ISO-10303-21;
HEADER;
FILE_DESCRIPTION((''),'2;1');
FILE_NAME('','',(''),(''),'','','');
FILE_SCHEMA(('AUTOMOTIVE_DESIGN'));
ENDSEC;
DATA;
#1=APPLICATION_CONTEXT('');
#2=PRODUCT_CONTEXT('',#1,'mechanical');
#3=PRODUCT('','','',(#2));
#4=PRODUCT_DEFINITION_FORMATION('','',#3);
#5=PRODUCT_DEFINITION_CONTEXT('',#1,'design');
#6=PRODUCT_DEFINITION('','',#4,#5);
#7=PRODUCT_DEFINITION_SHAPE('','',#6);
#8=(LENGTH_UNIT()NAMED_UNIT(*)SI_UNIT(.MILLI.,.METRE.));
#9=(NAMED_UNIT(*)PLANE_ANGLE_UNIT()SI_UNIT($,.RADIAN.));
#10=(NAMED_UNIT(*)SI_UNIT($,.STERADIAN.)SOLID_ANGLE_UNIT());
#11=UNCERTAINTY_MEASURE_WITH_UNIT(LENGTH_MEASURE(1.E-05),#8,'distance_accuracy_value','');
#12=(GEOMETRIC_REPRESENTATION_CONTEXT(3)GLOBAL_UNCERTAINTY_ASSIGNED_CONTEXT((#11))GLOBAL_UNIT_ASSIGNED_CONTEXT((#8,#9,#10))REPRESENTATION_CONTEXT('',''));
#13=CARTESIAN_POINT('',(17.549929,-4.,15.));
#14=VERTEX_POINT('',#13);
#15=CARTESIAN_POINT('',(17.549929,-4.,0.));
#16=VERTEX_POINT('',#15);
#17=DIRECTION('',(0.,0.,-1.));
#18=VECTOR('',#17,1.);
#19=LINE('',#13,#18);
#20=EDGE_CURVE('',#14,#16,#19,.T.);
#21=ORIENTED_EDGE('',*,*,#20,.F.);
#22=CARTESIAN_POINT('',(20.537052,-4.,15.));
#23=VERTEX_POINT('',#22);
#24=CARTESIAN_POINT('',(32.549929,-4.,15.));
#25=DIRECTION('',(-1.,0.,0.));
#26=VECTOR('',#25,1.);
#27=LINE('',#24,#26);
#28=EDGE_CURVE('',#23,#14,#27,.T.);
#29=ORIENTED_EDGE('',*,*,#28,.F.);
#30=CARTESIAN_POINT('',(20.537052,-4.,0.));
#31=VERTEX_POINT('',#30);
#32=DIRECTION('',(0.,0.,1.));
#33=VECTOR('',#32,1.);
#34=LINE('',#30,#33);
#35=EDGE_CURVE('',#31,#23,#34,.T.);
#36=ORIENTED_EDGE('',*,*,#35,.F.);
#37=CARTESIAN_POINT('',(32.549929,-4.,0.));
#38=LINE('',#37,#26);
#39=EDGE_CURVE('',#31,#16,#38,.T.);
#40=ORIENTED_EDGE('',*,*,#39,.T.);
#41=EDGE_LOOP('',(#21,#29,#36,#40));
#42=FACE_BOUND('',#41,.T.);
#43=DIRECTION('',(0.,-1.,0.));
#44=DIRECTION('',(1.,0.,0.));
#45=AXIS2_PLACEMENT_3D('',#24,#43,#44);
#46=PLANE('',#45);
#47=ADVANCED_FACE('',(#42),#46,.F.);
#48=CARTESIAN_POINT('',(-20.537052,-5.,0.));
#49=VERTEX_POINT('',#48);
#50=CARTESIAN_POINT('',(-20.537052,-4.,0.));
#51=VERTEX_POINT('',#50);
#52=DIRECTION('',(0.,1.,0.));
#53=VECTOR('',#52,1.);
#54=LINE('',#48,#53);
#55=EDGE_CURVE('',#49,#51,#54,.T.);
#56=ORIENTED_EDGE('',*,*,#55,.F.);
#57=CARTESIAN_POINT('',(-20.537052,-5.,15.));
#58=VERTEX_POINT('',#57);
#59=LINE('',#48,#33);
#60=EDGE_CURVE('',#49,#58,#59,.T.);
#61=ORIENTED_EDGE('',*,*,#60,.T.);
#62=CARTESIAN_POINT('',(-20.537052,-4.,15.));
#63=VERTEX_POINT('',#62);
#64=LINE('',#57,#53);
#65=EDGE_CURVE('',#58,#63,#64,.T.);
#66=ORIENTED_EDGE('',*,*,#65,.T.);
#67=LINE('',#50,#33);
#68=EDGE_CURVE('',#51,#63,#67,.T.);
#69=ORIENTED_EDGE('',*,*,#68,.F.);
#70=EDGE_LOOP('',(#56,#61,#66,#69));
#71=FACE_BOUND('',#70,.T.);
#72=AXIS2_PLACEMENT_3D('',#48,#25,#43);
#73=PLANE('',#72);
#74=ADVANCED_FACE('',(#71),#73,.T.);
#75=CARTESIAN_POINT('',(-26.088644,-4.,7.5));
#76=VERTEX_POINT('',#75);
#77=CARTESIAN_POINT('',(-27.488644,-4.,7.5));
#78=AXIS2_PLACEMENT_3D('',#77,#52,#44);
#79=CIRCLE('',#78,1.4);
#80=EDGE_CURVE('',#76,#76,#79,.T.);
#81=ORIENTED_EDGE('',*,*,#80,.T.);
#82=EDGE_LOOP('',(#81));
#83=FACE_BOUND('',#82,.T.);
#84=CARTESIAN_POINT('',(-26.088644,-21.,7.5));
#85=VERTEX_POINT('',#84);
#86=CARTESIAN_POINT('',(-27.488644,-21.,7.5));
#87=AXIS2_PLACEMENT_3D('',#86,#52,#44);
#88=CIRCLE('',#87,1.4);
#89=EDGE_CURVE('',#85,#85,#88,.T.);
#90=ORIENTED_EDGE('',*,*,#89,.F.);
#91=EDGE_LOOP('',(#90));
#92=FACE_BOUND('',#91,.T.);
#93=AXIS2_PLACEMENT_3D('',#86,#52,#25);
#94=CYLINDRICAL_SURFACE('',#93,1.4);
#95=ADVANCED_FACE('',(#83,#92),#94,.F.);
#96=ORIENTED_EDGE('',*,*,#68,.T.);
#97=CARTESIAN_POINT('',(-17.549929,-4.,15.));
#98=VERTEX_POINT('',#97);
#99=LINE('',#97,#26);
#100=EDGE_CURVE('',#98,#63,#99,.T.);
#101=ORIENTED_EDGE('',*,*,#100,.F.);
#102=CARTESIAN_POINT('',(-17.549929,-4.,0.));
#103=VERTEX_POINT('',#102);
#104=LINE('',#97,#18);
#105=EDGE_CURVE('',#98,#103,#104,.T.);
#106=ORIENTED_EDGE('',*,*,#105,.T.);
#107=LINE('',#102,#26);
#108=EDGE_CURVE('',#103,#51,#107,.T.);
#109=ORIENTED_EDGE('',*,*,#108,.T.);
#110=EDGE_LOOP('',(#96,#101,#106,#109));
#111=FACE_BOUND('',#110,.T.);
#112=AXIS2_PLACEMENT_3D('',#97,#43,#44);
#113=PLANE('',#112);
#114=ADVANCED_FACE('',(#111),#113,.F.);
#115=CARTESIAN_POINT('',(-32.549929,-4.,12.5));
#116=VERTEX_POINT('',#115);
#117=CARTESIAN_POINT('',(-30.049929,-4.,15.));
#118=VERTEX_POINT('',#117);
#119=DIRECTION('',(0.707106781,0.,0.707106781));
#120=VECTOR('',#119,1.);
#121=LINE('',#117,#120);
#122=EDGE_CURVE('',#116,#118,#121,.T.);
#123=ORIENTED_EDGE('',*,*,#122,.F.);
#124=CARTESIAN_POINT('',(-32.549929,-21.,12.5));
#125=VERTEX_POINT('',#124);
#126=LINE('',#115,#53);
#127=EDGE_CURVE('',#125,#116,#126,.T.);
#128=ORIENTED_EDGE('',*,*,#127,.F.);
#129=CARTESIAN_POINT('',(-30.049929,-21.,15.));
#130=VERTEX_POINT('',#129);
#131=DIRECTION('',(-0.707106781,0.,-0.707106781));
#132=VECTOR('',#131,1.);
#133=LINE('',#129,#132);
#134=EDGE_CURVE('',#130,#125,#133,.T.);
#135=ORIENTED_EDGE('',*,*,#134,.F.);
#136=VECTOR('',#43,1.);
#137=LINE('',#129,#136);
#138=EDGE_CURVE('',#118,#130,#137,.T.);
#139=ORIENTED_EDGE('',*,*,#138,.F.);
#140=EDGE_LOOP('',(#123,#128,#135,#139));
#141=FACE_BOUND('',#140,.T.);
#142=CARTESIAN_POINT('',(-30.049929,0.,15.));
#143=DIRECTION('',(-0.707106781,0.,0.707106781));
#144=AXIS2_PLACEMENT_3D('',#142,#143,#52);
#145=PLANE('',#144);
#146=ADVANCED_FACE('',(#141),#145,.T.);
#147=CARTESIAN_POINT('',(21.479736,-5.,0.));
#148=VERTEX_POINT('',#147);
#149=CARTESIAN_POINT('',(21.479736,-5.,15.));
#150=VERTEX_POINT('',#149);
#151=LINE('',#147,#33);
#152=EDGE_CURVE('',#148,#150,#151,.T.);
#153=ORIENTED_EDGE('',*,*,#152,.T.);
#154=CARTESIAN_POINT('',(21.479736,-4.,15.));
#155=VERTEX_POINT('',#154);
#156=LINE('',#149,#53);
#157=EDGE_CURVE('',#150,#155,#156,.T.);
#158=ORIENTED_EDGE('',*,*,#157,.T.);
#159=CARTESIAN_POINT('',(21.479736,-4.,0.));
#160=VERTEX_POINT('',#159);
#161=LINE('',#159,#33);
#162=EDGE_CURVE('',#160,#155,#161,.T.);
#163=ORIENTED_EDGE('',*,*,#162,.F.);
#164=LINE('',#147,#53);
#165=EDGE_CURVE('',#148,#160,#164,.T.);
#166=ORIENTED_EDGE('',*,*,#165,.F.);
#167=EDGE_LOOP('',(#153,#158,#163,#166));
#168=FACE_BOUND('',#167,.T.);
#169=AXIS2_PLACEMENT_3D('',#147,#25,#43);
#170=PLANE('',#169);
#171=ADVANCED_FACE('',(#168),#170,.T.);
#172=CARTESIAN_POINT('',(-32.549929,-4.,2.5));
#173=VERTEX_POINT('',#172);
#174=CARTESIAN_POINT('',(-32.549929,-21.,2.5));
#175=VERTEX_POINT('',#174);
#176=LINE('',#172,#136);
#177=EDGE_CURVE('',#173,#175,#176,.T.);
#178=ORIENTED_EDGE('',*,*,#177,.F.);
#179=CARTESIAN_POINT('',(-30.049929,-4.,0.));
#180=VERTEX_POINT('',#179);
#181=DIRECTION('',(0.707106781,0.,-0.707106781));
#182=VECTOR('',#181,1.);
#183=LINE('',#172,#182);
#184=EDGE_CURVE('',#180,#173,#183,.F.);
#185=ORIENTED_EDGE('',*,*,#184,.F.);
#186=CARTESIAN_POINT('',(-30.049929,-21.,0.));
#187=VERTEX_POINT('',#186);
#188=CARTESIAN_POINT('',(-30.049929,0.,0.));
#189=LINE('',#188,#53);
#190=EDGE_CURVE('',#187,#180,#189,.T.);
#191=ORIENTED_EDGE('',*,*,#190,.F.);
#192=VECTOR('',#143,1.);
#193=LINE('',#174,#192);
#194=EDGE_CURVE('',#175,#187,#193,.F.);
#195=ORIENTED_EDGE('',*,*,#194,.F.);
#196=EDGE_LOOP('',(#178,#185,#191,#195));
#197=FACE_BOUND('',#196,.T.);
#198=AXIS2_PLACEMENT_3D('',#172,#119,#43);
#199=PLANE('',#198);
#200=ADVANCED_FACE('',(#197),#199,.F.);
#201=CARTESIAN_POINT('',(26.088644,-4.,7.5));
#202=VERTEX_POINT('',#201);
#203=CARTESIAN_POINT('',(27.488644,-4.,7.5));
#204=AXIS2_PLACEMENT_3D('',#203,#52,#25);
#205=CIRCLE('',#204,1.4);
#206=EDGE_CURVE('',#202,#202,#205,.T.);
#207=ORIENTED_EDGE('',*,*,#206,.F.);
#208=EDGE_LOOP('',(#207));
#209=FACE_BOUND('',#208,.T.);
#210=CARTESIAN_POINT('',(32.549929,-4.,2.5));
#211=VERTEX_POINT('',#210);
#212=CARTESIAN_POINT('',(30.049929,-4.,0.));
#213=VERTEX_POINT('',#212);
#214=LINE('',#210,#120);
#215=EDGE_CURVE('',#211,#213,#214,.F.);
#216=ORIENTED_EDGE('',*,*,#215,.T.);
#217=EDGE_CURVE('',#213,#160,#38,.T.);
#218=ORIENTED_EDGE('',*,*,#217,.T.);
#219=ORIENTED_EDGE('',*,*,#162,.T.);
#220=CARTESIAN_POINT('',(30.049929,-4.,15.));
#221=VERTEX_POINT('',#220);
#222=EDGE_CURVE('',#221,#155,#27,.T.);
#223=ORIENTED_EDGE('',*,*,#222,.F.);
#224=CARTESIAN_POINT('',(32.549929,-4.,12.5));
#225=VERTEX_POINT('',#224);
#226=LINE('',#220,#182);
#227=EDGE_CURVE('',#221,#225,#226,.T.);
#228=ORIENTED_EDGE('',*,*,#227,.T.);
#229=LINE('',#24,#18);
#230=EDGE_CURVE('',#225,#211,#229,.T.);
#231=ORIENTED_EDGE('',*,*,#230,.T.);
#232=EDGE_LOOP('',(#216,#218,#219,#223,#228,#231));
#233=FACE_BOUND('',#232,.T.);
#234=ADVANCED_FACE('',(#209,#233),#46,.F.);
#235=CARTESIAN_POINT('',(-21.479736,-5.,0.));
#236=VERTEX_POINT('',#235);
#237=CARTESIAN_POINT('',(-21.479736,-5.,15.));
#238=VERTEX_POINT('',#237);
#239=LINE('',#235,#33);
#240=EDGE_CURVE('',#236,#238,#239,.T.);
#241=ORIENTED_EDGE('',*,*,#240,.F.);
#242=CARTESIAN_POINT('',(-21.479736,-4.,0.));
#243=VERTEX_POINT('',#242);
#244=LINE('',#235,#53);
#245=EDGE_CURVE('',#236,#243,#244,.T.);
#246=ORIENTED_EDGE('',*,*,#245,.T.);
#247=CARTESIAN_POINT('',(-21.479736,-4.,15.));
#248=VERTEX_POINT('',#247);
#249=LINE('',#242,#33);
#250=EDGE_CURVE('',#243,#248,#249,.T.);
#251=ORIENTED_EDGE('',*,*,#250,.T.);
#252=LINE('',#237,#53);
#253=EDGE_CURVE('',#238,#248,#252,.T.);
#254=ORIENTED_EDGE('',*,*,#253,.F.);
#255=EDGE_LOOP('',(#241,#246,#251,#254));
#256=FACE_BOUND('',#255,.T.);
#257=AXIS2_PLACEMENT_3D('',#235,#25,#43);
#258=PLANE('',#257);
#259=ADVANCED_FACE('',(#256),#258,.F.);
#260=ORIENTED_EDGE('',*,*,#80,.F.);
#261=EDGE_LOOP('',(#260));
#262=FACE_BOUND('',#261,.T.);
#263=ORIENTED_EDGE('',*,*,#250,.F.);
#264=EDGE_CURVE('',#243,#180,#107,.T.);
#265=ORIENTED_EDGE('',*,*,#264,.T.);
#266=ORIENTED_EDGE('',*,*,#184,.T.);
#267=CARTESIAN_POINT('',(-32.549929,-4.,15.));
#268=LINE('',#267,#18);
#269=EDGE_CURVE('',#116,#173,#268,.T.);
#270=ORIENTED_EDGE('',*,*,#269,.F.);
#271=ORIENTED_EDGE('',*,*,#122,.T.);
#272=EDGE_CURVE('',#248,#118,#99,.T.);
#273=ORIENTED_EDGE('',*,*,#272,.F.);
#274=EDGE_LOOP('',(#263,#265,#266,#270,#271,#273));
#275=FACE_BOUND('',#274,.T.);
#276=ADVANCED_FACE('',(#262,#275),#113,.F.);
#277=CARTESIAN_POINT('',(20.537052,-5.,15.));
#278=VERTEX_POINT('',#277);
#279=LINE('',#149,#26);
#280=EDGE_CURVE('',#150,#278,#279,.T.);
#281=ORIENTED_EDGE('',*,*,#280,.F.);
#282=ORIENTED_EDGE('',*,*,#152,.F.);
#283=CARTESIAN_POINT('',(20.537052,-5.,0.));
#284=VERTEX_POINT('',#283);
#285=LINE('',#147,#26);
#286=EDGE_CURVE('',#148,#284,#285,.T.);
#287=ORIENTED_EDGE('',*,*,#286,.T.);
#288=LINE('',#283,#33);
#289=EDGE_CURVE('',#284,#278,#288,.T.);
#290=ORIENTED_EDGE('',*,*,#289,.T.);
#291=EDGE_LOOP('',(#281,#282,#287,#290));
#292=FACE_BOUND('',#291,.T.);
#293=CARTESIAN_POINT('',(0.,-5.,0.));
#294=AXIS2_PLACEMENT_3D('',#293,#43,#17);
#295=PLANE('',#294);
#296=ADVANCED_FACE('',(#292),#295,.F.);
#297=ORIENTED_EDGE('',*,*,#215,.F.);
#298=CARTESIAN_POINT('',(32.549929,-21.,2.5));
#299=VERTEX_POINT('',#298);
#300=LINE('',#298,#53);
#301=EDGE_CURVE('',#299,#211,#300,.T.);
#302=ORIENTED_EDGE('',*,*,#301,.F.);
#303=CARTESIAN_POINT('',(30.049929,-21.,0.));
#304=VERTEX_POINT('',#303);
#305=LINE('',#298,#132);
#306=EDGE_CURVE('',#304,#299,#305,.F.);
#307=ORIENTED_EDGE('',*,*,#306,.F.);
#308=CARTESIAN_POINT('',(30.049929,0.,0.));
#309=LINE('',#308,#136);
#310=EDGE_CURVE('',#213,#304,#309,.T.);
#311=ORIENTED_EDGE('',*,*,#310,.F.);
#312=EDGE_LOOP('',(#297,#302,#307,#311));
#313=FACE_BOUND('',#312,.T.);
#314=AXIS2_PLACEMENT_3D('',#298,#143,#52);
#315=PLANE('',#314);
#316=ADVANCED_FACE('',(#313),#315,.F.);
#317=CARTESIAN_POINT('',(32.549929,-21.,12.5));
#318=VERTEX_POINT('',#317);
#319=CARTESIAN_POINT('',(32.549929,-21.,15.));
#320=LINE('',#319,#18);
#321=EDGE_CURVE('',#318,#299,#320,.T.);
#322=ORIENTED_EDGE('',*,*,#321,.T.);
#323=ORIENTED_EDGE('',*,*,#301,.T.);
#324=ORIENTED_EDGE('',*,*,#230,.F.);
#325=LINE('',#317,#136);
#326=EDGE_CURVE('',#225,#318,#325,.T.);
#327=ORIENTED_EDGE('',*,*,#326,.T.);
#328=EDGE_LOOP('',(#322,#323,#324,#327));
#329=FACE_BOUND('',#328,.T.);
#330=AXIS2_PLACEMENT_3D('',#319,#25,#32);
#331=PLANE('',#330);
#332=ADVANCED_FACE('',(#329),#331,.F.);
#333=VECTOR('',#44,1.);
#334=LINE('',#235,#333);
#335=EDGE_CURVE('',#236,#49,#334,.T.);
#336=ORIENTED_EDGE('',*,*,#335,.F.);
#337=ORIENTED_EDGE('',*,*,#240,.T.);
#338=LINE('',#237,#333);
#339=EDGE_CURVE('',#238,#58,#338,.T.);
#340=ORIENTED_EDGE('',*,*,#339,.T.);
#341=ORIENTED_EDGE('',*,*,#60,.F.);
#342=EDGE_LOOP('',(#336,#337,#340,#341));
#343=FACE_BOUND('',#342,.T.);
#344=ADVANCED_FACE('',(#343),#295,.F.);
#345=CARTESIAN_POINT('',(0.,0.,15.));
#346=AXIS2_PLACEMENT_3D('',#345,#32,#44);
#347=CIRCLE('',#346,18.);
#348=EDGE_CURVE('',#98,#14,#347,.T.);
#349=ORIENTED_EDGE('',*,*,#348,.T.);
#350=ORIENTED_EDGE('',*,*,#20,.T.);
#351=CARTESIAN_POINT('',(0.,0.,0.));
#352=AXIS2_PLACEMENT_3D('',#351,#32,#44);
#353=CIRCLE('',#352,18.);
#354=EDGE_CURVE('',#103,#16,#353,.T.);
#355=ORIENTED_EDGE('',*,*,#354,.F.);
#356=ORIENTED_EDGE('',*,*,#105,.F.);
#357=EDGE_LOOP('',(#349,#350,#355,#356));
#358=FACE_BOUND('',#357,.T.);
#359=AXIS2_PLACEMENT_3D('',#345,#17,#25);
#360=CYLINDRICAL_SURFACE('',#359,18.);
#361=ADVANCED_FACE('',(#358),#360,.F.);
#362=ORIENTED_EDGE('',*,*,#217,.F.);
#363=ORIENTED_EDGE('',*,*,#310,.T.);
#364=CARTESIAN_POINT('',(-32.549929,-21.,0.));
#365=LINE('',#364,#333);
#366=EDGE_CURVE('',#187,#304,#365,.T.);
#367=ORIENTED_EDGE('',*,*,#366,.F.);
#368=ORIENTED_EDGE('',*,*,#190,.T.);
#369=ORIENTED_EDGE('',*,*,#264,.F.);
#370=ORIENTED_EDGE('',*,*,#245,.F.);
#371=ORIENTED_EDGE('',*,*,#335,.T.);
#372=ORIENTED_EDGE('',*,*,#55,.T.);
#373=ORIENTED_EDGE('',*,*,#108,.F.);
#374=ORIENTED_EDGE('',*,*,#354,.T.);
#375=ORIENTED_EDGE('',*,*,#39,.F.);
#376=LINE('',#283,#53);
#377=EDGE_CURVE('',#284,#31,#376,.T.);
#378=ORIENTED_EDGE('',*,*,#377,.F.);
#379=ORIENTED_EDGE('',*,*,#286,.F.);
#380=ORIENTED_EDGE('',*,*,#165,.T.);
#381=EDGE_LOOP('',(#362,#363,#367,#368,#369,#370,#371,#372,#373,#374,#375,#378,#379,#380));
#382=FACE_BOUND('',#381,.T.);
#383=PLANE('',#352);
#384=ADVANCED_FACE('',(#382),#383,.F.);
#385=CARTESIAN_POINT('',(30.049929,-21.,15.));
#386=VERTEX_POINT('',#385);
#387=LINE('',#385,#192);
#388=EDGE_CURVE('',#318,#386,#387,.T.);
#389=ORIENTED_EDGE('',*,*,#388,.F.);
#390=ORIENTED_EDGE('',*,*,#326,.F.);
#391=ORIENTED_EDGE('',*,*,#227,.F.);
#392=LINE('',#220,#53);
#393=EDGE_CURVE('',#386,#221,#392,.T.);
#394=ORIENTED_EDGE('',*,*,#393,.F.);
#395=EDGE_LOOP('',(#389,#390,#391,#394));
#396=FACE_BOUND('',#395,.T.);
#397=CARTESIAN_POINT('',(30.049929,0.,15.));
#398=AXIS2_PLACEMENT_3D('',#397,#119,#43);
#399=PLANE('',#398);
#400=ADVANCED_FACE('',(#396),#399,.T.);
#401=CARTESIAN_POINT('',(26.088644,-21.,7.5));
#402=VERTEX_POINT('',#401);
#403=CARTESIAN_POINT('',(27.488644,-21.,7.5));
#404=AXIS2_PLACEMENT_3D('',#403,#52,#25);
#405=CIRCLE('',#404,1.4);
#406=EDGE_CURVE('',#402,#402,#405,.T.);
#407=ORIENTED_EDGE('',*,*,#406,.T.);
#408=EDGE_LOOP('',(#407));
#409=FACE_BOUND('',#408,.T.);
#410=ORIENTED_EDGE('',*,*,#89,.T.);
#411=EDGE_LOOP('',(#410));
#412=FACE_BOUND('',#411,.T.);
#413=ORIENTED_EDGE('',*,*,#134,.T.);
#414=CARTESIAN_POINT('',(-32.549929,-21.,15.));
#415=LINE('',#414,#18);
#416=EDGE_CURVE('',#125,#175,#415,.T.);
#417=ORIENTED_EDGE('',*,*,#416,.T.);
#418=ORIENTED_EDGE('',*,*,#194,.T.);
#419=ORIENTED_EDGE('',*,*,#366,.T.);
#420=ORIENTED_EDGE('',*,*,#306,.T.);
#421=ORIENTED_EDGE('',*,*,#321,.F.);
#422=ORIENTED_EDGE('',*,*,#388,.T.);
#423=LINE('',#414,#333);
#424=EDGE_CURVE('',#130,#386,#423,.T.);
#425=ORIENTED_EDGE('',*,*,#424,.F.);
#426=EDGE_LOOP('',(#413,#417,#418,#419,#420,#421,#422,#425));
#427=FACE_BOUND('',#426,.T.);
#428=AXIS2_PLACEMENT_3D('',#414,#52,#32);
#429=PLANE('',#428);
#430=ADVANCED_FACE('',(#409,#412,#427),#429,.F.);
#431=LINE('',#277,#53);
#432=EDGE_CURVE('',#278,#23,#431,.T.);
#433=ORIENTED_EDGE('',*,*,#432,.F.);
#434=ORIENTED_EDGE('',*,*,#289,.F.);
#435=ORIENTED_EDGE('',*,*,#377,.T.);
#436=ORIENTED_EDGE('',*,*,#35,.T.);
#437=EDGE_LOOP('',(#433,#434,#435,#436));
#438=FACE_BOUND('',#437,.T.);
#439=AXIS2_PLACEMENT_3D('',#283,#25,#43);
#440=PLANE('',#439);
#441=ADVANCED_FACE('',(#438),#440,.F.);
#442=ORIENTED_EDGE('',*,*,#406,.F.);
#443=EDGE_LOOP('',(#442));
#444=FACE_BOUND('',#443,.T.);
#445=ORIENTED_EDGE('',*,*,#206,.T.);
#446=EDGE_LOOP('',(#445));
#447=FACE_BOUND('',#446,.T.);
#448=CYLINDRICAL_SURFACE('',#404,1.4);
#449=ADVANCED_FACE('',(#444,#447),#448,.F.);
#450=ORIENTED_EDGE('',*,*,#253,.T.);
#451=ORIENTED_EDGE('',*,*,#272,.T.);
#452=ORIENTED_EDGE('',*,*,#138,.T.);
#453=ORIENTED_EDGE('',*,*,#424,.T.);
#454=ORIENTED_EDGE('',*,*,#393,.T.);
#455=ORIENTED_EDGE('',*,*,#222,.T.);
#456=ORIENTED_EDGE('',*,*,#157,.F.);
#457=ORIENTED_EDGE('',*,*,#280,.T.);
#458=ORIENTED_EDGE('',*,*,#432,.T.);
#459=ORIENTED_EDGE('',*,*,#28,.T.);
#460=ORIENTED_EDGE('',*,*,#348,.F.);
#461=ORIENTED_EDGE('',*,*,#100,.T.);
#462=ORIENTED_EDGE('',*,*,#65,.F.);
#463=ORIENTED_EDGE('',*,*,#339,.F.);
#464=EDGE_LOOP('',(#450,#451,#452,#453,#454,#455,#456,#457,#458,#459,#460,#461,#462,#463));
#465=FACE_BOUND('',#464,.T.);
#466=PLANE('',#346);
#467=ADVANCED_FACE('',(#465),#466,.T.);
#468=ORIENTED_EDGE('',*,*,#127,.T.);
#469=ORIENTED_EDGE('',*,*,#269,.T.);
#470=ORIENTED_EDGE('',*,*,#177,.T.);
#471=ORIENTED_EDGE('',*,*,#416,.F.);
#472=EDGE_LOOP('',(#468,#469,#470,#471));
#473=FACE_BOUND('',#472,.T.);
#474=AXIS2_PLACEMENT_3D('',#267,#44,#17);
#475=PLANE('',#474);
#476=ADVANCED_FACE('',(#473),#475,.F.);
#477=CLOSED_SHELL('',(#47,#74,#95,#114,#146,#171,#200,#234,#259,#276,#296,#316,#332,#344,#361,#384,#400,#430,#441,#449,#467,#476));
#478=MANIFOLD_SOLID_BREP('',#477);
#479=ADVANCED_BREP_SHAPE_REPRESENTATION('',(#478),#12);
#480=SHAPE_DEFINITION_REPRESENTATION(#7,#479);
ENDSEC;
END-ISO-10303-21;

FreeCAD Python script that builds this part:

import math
import FreeCAD as App
import Part
import Sketcher

V = App.Vector
Q = App.Units.Quantity


def edges_at(feature, points):
    """Names of the edges that pass closest to the given points."""
    edges = feature.Shape.Edges
    near = lambda p: min(range(len(edges)), key=lambda i: edges[i].distToShape(Part.Vertex(*p))[0])
    return sorted({f"Edge{near(p) + 1}" for p in points})


def add_polygon(sketch, points):
    """Adds a closed chain of lines whose ends are joined by coincident constraints."""
    first, n = sketch.GeometryCount, len(points)
    for a, b in zip(points, points[1:] + points[:1]):
        sketch.addGeometry(Part.LineSegment(App.Vector(*a, 0), App.Vector(*b, 0)), False)
    for i in range(n):
        sketch.addConstraint(Sketcher.Constraint("Coincident", first + i, 2, first + (i + 1) % n, 1))

doc = App.newDocument("Part")
body = doc.addObject("PartDesign::Body", "Body")

sketch1 = doc.addObject("Sketcher::SketchObject", "Sketch")
body.addObject(sketch1)
sketch1.AttachmentSupport = (doc.XY_Plane, [""])
sketch1.MapMode = "FlatFace"
sketch1.addGeometry([
    Part.LineSegment(V(-18, -4, 0), V(-33, -4, 0)),
    Part.LineSegment(V(-33, -4, 0), V(-33, -21, 0)),
    Part.LineSegment(V(-33, -21, 0), V(33, -21, 0)),
    Part.LineSegment(V(33, -21, 0), V(33, -4, 0)),
    Part.LineSegment(V(33, -4, 0), V(18, -4, 0)),
    Part.ArcOfCircle(Part.Circle(V(0, 0, 0), V(0, 0, 1), 18), math.radians(-167), math.radians(-13)),
], False)
sketch1.addConstraint([
    Sketcher.Constraint("Coincident", 0, 2, 1, 1),
    Sketcher.Constraint("Coincident", 1, 2, 2, 1),
    Sketcher.Constraint("Coincident", 2, 2, 3, 1),
    Sketcher.Constraint("Coincident", 3, 2, 4, 1),
    Sketcher.Constraint("Coincident", 4, 2, 5, 2),
    Sketcher.Constraint("Coincident", 5, 1, 0, 1),
    Sketcher.Constraint("Horizontal", 0),
    Sketcher.Constraint("Vertical", 1),
    Sketcher.Constraint("Horizontal", 2),
    Sketcher.Constraint("Vertical", 3),
    Sketcher.Constraint("Horizontal", 4),
    Sketcher.Constraint("Coincident", 5, 3, -1, 1),
    Sketcher.Constraint("Symmetric", 0, 2, 3, 2, -2),
    Sketcher.Constraint("Radius", 5, Q("18 mm")),
    Sketcher.Constraint("DistanceX", 0, 2, 0, 1, Q("15 mm")),
    Sketcher.Constraint("DistanceY", 1, 2, 1, 1, Q("17 mm")),
    Sketcher.Constraint("DistanceY", 0, 2, -1, 1, Q("4 mm")),
])
pad1 = doc.addObject("PartDesign::Pad", "Pad")
body.addObject(pad1)
pad1.Profile = sketch1
pad1.Length = 15
doc.recompute()

chamfer = doc.addObject("PartDesign::Chamfer", "Chamfer")
body.addObject(chamfer)
chamfer.Base = (pad1, edges_at(pad1, [
    (-32.55, -12.5, 15),
    (32.55, -12.5, 15),
    (-32.55, -12.5, 0),
    (32.55, -12.5, 0),
]))
chamfer.Size = 2.5

sketch2 = doc.addObject("Sketcher::SketchObject", "Sketch001")
body.addObject(sketch2)
sketch2.AttachmentSupport = (doc.XZ_Plane, [""])
sketch2.MapMode = "FlatFace"
sketch2.AttachmentOffset = App.Placement(V(0, 0, 4), App.Rotation())
sketch2.addGeometry([
    Part.Circle(V(27.5, 7.5, 0), V(0, 0, 1), 1.4),
    Part.Circle(V(-27.5, 7.5, 0), V(0, 0, 1), 1.4),
], False)
sketch2.addConstraint([
    Sketcher.Constraint("Equal", 0, 1),
    Sketcher.Constraint("Symmetric", 0, 3, 1, 3, -2),
    Sketcher.Constraint("Diameter", 0, Q("2.8 mm")),
    Sketcher.Constraint("DistanceY", -1, 1, 0, 3, Q("7.5 mm")),
    Sketcher.Constraint("DistanceX", 1, 3, 0, 3, Q("54.977289 mm")),
])
pocket1 = doc.addObject("PartDesign::Pocket", "Pocket")
body.addObject(pocket1)
pocket1.Profile = sketch2
pocket1.Type = "ThroughAll"
pocket1.Reversed = True

sketch3 = doc.addObject("Sketcher::SketchObject", "Sketch002")
body.addObject(sketch3)
sketch3.AttachmentSupport = (doc.XZ_Plane, [""])
sketch3.MapMode = "FlatFace"
sketch3.AttachmentOffset = App.Placement(V(0, 0, 4), App.Rotation())
add_polygon(sketch3, [(-21.5, 0), (-21.5, 15), (-20.5, 15), (-20.5, 0)])
sketch3.addConstraint([
    Sketcher.Constraint("Vertical", 0),
    Sketcher.Constraint("Horizontal", 1),
    Sketcher.Constraint("Vertical", 2),
    Sketcher.Constraint("Horizontal", 3),
    Sketcher.Constraint("PointOnObject", 2, 2, -1),
    Sketcher.Constraint("DistanceY", 0, 1, 0, 2, Q("15 mm")),
    Sketcher.Constraint("DistanceX", 1, 1, 1, 2, Q("0.942684 mm")),
    Sketcher.Constraint("DistanceX", 1, 2, -1, 1, Q("20.537052 mm")),
])
pocket2 = doc.addObject("PartDesign::Pocket", "Pocket001")
body.addObject(pocket2)
pocket2.Profile = sketch3
pocket2.Length = 1
pocket2.Reversed = True
doc.recompute()

mirrored = doc.addObject("PartDesign::Mirrored", "Mirrored")
body.addObject(mirrored)
mirrored.Originals = [pocket2]
mirrored.MirrorPlane = (doc.YZ_Plane, [""])
body.Tip = mirrored

doc.recompute()
